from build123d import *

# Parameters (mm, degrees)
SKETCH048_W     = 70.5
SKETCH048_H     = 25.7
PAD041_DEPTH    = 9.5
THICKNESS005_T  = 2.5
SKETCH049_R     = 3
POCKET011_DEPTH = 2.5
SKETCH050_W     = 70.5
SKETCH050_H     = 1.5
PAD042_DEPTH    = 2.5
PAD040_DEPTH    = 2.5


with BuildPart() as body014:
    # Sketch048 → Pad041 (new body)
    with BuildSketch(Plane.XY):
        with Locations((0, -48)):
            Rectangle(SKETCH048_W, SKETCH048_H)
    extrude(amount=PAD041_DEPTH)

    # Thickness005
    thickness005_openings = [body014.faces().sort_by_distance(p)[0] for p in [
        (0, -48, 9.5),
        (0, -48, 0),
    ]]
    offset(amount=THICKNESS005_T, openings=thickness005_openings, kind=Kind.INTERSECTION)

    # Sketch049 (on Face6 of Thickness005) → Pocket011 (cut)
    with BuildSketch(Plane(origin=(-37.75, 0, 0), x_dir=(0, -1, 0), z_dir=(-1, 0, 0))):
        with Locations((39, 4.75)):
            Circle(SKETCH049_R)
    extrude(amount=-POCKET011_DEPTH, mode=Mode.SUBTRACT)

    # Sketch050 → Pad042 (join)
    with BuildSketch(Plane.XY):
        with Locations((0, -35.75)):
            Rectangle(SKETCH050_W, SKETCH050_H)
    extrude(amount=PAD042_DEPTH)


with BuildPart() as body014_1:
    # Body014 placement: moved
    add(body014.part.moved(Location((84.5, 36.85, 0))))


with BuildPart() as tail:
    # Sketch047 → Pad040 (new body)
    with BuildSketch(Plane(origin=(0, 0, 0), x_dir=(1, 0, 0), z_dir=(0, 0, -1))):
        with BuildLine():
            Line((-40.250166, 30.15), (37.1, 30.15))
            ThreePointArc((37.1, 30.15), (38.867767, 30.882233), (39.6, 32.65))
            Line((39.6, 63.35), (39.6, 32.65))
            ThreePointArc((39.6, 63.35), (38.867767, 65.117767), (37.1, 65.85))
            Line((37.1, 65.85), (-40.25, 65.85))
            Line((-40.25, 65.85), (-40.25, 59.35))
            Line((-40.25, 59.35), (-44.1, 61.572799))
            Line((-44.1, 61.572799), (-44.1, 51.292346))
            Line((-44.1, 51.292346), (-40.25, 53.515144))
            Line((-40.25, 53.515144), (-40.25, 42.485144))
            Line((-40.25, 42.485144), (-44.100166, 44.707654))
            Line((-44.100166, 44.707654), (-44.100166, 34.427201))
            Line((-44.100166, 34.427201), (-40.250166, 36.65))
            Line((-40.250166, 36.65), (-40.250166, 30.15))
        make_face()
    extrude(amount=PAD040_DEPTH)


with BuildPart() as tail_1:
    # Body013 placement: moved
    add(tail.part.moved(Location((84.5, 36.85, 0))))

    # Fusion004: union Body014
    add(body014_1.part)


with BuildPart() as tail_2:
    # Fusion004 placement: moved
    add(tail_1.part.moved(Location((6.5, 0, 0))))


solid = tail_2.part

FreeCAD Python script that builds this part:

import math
import FreeCAD as App
import Part
import Sketcher
Q = App.Units.Quantity


def faces_at(feature, points):
    """Names of the faces that lie closest to the given points."""
    faces = feature.Shape.Faces
    near = lambda p: min(range(len(faces)), key=lambda i: faces[i].distToShape(Part.Vertex(*p))[0])
    return sorted({f"Face{near(p) + 1}" for p in points})

doc = App.newDocument("Part")
body = doc.addObject("PartDesign::Body", "Body")

sketch1 = body.newObject("Sketcher::SketchObject", "Sketch")
sketch1.AttachmentSupport = (doc.getObject("XY_Plane"), [""])
sketch1.MapMode = "FlatFace"
sketch1.addGeometry([
    Part.LineSegment(App.Vector(-35.25, -35.15, 0), App.Vector(-35.25, -60.85, 0)),
    Part.LineSegment(App.Vector(-35.25, -60.85, 0), App.Vector(35.25, -60.85, 0)),
    Part.LineSegment(App.Vector(35.25, -60.85, 0), App.Vector(35.25, -35.15, 0)),
    Part.LineSegment(App.Vector(35.25, -35.15, 0), App.Vector(-35.25, -35.15, 0)),
], False)
sketch1.addConstraint([
    Sketcher.Constraint("Coincident", 0, 2, 1, 1),
    Sketcher.Constraint("Coincident", 1, 2, 2, 1),
    Sketcher.Constraint("Coincident", 2, 2, 3, 1),
    Sketcher.Constraint("Coincident", 3, 2, 0, 1),
    Sketcher.Constraint("Vertical", 0),
    Sketcher.Constraint("Horizontal", 1),
    Sketcher.Constraint("Vertical", 2),
    Sketcher.Constraint("Horizontal", 3),
    Sketcher.Constraint("DistanceX", 1, 1, 1, 2, Q("70.5 mm")),
    Sketcher.Constraint("DistanceY", 0, 2, 0, 1, Q("25.7 mm")),
    Sketcher.Constraint("DistanceX", 0, 2, -1, 1, Q("35.25 mm")),
    Sketcher.Constraint("DistanceY", 0, 2, -1, 1, Q("60.85 mm")),
])
pad1 = body.newObject("PartDesign::Pad", "Pad")
pad1.Profile = sketch1
pad1.Length = 9.5
doc.recompute()

thickness = body.newObject("PartDesign::Thickness", "Thickness")
thickness.Base = (pad1, faces_at(pad1, [(0, -48, 9.5), (0, -48, 0)]))
thickness.Value = 2.5
thickness.Reversed = False
thickness.Join = "Intersection"

sketch2 = body.newObject("Sketcher::SketchObject", "Sketch001")
sketch2.AttachmentSupport = (doc.getObject("YZ_Plane"), [""])
sketch2.MapMode = "FlatFace"
sketch2.AttachmentOffset = App.Placement(App.Vector(0, 0, -37.75), App.Rotation())
sketch2.addGeometry(Part.Circle(App.Vector(-39, 4.75, 0), App.Vector(0, 0, 1), 3), False)
sketch2.addConstraint([
    Sketcher.Constraint("Diameter", 0, Q("6 mm")),
    Sketcher.Constraint("DistanceX", 0, 3, -1, 1, Q("39 mm")),
    Sketcher.Constraint("DistanceY", -1, 1, 0, 3, Q("4.75 mm")),
])
pocket1 = body.newObject("PartDesign::Pocket", "Pocket")
pocket1.Profile = sketch2
pocket1.Length = 2.5
pocket1.Reversed = True

sketch3 = body.newObject("Sketcher::SketchObject", "Sketch002")
sketch3.AttachmentSupport = (doc.getObject("XY_Plane"), [""])
sketch3.MapMode = "FlatFace"
sketch3.addGeometry([
    Part.LineSegment(App.Vector(-35.25, -35, 0), App.Vector(-35.25, -36.5, 0)),
    Part.LineSegment(App.Vector(-35.25, -36.5, 0), App.Vector(35.25, -36.5, 0)),
    Part.LineSegment(App.Vector(35.25, -36.5, 0), App.Vector(35.25, -35, 0)),
    Part.LineSegment(App.Vector(35.25, -35, 0), App.Vector(-35.25, -35, 0)),
], False)
sketch3.addConstraint([
    Sketcher.Constraint("Coincident", 0, 2, 1, 1),
    Sketcher.Constraint("Coincident", 1, 2, 2, 1),
    Sketcher.Constraint("Coincident", 2, 2, 3, 1),
    Sketcher.Constraint("Coincident", 3, 2, 0, 1),
    Sketcher.Constraint("Vertical", 0),
    Sketcher.Constraint("Horizontal", 1),
    Sketcher.Constraint("Vertical", 2),
    Sketcher.Constraint("Horizontal", 3),
    Sketcher.Constraint("DistanceX", 1, 1, 1, 2, Q("70.5 mm")),
    Sketcher.Constraint("DistanceY", 0, 2, 0, 1, Q("1.5 mm")),
    Sketcher.Constraint("DistanceY", 2, 2, -1, 1, Q("35 mm")),
    Sketcher.Constraint("DistanceX", 0, 2, -1, 1, Q("35.25 mm")),
])
pad2 = body.newObject("PartDesign::Pad", "Pad001")
pad2.Profile = sketch3
pad2.Length = 2.5
body2 = doc.addObject("PartDesign::Body", "Body001")
doc.recompute()

body.Placement = App.Placement(App.Vector(84.5, 36.85, 0), App.Rotation(App.Vector(0, 0, 1), 0))
boolean = body2.newObject("PartDesign::Boolean", "Boolean")
boolean.Type = "Fuse"
boolean.addObjects([body])
body3 = doc.addObject("PartDesign::Body", "Body002")

sketch4 = body3.newObject("Sketcher::SketchObject", "Sketch003")
sketch4.AttachmentSupport = (doc.getObject("XY_Plane002"), [""])
sketch4.MapMode = "FlatFace"
sketch4.addGeometry([
    Part.LineSegment(App.Vector(-40.250166, -30.15, 0), App.Vector(37.1, -30.15, 0)),
    Part.ArcOfCircle(Part.Circle(App.Vector(37.1, -32.65, 0), App.Vector(0, 0, 1), 2.5), math.radians(-0.000004), math.radians(90.000004)),
    Part.LineSegment(App.Vector(39.6, -32.65, 0), App.Vector(39.6, -63.35, 0)),
    Part.ArcOfCircle(Part.Circle(App.Vector(37.1, -63.35, 0), App.Vector(0, 0, 1), 2.5), math.radians(-90.000004), math.radians(0.000004)),
    Part.LineSegment(App.Vector(37.1, -65.85, 0), App.Vector(-40.25, -65.85, 0)),
    Part.LineSegment(App.Vector(-40.25, -65.85, 0), App.Vector(-40.25, -59.35, 0)),
    Part.LineSegment(App.Vector(-40.25, -59.35, 0), App.Vector(-44.1, -61.572799, 0)),
    Part.LineSegment(App.Vector(-44.1, -61.572799, 0), App.Vector(-44.1, -51.292346, 0)),
    Part.LineSegment(App.Vector(-44.1, -51.292346, 0), App.Vector(-40.25, -53.515144, 0)),
    Part.LineSegment(App.Vector(-40.25, -53.515144, 0), App.Vector(-40.25, -42.485144, 0)),
    Part.LineSegment(App.Vector(-40.25, -42.485144, 0), App.Vector(-44.100166, -44.707654, 0)),
    Part.LineSegment(App.Vector(-44.100166, -44.707654, 0), App.Vector(-44.100166, -34.427201, 0)),
    Part.LineSegment(App.Vector(-44.100166, -34.427201, 0), App.Vector(-40.250166, -36.65, 0)),
    Part.LineSegment(App.Vector(-40.250166, -36.65, 0), App.Vector(-40.250166, -30.15, 0)),
], False)
sketch4.addConstraint([
    Sketcher.Constraint("Tangent", 0, 2, 1, 2),
    Sketcher.Constraint("Tangent", 1, 1, 2, 1),
    Sketcher.Constraint("Tangent", 2, 2, 3, 2),
    Sketcher.Constraint("Tangent", 3, 1, 4, 1),
    Sketcher.Constraint("Coincident", 4, 2, 5, 1),
    Sketcher.Constraint("Coincident", 5, 2, 6, 1),
    Sketcher.Constraint("Coincident", 6, 2, 7, 1),
    Sketcher.Constraint("Coincident", 7, 2, 8, 1),
    Sketcher.Constraint("Coincident", 8, 2, 9, 1),
    Sketcher.Constraint("Coincident", 9, 2, 10, 1),
    Sketcher.Constraint("Coincident", 10, 2, 11, 1),
    Sketcher.Constraint("Coincident", 11, 2, 12, 1),
    Sketcher.Constraint("Coincident", 12, 2, 13, 1),
    Sketcher.Constraint("Coincident", 13, 2, 0, 1),
    Sketcher.Constraint("Horizontal", 0),
    Sketcher.Constraint("Vertical", 2),
    Sketcher.Constraint("Horizontal", 4),
    Sketcher.Constraint("Vertical", 5),
    Sketcher.Constraint("Vertical", 7),
    Sketcher.Constraint("Vertical", 9),
    Sketcher.Constraint("Vertical", 11),
    Sketcher.Constraint("Vertical", 13),
    Sketcher.Constraint("Equal", 1, 3),
    Sketcher.Constraint("Parallel", 8, 12),
    Sketcher.Constraint("Vertical", 5, 2, 8, 2),
    Sketcher.Constraint("Equal", 7, 11),
    Sketcher.Constraint("Equal", 5, 13),
    Sketcher.Constraint("Equal", 6, 8),
    Sketcher.Constraint("Equal", 8, 10),
    Sketcher.Constraint("Equal", 10, 12),
    Sketcher.Constraint("Radius", 1, Q("2.5 mm")),
    Sketcher.Constraint("Angle", 6, Q("-149.999995 deg")),
    Sketcher.Constraint("DistanceY", 2, 2, 2, 1, Q("30.7 mm")),
    Sketcher.Constraint("DistanceY", 5, 1, 5, 2, Q("6.5 mm")),
    Sketcher.Constraint("DistanceX", 4, 2, 4, 1, Q("77.35 mm")),
    Sketcher.Constraint("DistanceY", 9, 1, 9, 2, Q("11.03 mm")),
    Sketcher.Constraint("DistanceX", -1, 1, 1, 3, Q("37.1 mm")),
    Sketcher.Constraint("DistanceX", 6, 2, -1, 1, Q("44.1 mm")),
    Sketcher.Constraint("DistanceY", 1, 3, -1, 1, Q("32.65 mm")),
    Sketcher.Constraint("DistanceX", 0, 1, 0, 2, Q("77.350166 mm")),
])
pad3 = body3.newObject("PartDesign::Pad", "Pad002")
pad3.Profile = sketch4
pad3.Length = 2.5
pad3.Reversed = True
body4 = doc.addObject("PartDesign::Body", "Body003")
doc.recompute()

body3.Placement = App.Placement(App.Vector(84.5, 36.85, 0), App.Rotation(App.Vector(0, 0, 1), 0))
boolean2 = body4.newObject("PartDesign::Boolean", "Boolean001")
boolean2.Type = "Fuse"
boolean2.addObjects([body3])
doc.recompute()

boolean3 = body4.newObject("PartDesign::Boolean", "Boolean002")
boolean3.Type = "Fuse"
boolean3.addObjects([body2])
body5 = doc.addObject("PartDesign::Body", "Body004")
doc.recompute()

body4.Placement = App.Placement(App.Vector(6.5, 0, 0), App.Rotation(App.Vector(0, 0, 1), 0))
boolean4 = body5.newObject("PartDesign::Boolean", "Boolean003")
boolean4.Type = "Fuse"
boolean4.addObjects([body4])

doc.recompute()
